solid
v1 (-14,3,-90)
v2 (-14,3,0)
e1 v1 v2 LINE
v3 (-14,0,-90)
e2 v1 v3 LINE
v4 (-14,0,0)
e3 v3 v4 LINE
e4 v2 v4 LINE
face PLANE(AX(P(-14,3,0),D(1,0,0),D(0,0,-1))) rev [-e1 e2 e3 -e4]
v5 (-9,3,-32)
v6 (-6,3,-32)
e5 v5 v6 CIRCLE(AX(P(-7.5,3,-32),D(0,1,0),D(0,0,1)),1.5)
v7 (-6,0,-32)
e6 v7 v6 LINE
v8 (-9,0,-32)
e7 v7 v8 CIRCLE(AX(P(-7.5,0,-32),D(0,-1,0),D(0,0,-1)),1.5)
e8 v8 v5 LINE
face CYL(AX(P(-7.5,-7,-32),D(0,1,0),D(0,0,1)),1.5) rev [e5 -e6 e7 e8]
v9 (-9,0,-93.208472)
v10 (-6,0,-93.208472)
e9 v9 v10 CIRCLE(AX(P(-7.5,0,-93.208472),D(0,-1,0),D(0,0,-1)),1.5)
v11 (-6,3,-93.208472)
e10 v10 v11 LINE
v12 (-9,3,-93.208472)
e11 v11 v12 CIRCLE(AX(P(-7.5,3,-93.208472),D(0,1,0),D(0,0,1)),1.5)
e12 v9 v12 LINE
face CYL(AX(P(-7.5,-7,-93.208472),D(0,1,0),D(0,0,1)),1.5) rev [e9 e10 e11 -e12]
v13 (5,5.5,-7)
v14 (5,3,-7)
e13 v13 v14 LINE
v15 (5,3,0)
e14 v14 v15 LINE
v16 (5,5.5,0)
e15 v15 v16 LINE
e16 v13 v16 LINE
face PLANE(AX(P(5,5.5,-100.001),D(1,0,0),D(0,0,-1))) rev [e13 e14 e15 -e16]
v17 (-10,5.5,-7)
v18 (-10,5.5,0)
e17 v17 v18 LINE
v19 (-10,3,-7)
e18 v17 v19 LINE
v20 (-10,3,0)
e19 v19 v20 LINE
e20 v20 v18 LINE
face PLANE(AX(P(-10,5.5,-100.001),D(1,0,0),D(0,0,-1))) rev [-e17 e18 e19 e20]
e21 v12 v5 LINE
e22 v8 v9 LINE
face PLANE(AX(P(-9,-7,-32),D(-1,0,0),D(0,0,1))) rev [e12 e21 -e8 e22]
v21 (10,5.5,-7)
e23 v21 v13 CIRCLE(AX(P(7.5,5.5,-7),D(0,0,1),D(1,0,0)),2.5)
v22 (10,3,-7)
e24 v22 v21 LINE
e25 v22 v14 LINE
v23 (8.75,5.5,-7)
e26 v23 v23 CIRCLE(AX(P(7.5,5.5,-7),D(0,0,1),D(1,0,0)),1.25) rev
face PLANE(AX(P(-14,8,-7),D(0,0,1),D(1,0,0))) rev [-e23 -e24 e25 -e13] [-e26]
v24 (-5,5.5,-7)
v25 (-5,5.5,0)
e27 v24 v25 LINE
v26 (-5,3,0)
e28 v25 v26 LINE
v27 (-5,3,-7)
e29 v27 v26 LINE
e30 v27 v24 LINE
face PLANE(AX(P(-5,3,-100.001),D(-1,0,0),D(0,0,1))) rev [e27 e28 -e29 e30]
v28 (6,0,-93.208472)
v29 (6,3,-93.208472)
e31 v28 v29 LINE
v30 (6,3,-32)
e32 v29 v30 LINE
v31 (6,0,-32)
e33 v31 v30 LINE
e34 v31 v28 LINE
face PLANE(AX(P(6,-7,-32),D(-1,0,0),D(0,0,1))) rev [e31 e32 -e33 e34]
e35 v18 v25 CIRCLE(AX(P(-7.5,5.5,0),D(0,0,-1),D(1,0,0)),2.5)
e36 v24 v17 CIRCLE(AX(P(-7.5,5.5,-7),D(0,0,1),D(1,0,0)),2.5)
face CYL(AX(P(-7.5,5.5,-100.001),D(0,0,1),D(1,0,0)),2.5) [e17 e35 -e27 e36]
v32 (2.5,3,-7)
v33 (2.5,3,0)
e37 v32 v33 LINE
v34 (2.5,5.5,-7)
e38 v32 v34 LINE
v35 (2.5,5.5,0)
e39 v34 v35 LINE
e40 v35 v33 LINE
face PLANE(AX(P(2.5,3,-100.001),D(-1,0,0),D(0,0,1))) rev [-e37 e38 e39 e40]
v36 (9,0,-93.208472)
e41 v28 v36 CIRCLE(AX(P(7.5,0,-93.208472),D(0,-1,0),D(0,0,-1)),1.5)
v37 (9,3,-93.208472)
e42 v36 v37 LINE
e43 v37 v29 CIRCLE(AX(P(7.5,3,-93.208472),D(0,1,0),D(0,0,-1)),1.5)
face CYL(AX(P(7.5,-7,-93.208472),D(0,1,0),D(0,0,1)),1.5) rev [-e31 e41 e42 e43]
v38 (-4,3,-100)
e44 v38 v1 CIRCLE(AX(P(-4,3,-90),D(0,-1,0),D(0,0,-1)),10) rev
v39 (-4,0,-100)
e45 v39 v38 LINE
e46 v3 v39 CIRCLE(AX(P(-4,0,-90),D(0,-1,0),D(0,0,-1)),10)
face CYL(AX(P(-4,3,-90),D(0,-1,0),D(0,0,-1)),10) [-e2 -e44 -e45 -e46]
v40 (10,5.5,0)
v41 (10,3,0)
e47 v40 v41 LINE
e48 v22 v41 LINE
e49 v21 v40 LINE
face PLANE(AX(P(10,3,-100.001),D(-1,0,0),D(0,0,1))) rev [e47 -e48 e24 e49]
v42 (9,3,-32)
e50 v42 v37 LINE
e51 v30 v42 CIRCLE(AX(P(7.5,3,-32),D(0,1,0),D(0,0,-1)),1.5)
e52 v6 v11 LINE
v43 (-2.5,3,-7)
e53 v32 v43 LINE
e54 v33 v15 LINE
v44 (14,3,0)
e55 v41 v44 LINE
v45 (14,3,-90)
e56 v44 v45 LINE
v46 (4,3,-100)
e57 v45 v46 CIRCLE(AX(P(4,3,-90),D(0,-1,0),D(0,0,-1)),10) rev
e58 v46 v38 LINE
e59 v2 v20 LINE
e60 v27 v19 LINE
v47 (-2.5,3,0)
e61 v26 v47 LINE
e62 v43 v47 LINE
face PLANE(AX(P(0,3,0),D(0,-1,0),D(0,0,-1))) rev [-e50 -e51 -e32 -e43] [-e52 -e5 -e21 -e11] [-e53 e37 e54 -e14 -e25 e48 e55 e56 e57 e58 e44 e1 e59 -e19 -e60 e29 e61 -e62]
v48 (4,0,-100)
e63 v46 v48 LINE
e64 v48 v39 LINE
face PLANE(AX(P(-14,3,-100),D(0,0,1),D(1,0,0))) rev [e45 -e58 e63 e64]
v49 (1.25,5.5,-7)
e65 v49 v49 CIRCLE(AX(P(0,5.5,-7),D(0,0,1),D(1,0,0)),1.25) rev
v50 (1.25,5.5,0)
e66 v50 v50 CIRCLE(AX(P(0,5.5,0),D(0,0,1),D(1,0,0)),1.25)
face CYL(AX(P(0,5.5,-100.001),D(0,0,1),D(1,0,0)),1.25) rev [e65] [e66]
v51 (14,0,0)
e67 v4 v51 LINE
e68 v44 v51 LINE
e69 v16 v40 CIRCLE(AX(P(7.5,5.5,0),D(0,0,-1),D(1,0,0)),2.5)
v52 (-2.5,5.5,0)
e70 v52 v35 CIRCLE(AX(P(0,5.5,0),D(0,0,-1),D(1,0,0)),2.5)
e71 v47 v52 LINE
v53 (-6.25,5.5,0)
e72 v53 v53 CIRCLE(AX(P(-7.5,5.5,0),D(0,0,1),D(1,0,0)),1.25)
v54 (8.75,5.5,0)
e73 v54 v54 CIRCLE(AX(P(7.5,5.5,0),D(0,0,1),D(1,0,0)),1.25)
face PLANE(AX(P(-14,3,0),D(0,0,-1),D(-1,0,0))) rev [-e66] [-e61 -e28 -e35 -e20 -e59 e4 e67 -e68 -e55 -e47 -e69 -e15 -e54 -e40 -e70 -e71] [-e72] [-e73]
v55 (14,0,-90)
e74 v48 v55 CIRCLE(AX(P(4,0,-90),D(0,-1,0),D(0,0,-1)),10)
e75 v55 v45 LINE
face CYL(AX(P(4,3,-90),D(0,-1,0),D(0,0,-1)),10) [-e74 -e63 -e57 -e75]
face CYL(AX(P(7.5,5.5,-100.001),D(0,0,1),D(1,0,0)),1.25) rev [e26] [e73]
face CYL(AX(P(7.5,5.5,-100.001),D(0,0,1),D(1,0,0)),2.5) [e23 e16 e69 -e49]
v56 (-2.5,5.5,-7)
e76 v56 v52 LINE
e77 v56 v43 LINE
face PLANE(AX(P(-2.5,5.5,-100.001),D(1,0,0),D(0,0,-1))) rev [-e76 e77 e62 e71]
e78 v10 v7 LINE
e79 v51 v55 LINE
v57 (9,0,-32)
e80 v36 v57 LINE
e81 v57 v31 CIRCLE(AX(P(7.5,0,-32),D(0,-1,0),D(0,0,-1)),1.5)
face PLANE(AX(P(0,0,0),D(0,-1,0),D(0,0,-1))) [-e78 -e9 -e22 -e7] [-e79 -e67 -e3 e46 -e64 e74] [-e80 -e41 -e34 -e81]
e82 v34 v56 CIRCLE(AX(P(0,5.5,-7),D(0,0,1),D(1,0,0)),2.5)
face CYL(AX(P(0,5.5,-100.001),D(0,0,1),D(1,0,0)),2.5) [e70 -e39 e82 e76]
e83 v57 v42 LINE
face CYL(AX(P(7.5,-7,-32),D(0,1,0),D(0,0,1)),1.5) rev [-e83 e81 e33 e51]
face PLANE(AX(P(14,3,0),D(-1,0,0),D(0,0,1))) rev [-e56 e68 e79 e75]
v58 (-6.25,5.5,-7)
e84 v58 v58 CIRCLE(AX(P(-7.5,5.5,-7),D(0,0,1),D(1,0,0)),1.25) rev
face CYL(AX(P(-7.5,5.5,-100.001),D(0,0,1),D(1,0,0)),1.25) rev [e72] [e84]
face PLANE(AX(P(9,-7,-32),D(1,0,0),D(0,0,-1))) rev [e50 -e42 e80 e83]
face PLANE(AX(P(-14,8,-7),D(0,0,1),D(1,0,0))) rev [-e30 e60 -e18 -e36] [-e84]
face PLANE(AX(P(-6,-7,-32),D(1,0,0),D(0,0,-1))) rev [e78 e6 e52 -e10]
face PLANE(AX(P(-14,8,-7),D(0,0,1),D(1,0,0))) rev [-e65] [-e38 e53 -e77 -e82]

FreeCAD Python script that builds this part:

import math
import FreeCAD as App
import Part
import Sketcher
from FreeCAD import Vector
Q = App.Units.Quantity


def edges_at(feature, points):
    """Names of the edges that pass closest to the given points."""
    edges = feature.Shape.Edges
    near = lambda p: min(range(len(edges)), key=lambda i: edges[i].distToShape(Part.Vertex(*p))[0])
    return sorted({f"Edge{near(p) + 1}" for p in points})

doc = App.newDocument("Part")
body = doc.addObject("PartDesign::Body", "Body")

sketch1 = body.newObject("Sketcher::SketchObject", "Sketch")
sketch1.AttachmentSupport = (doc.getObject("XZ_Plane"), [""])
sketch1.MapMode = "FlatFace"
sketch1.addGeometry([
    Part.LineSegment(Vector(-14, -100, 0), Vector(-14, 0, 0)),
    Part.LineSegment(Vector(-14, 0, 0), Vector(14, 0, 0)),
    Part.LineSegment(Vector(14, 0, 0), Vector(14, -100, 0)),
    Part.LineSegment(Vector(14, -100, 0), Vector(-14, -100, 0)),
], False)
sketch1.addConstraint([
    Sketcher.Constraint("Coincident", 0, 2, 1, 1),
    Sketcher.Constraint("Coincident", 1, 2, 2, 1),
    Sketcher.Constraint("Coincident", 2, 2, 3, 1),
    Sketcher.Constraint("Coincident", 3, 2, 0, 1),
    Sketcher.Constraint("Vertical", 0),
    Sketcher.Constraint("Horizontal", 1),
    Sketcher.Constraint("Vertical", 2),
    Sketcher.Constraint("Horizontal", 3),
    Sketcher.Constraint("Symmetric", 0, 2, 1, 2, -1, 1),
    Sketcher.Constraint("DistanceX", 1, 1, 1, 2, Q("28 mm")),
    Sketcher.Constraint("DistanceY", 0, 1, 0, 2, Q("100 mm")),
])
pad1 = body.newObject("PartDesign::Pad", "Pad")
pad1.Profile = sketch1
pad1.Length = 3
pad1.Reversed = True

sketch2 = body.newObject("Sketcher::SketchObject", "Sketch001")
sketch2.AttachmentSupport = (doc.getObject("XZ_Plane"), [""])
sketch2.MapMode = "FlatFace"
sketch2.AttachmentOffset = App.Placement(Vector(0, 0, -3), App.Rotation())
sketch2.addGeometry([
    Part.LineSegment(Vector(-14, -7, 0), Vector(-14, 0, 0)),
    Part.LineSegment(Vector(-14, 0, 0), Vector(14, 0, 0)),
    Part.LineSegment(Vector(14, 0, 0), Vector(14, -7, 0)),
    Part.LineSegment(Vector(14, -7, 0), Vector(-14, -7, 0)),
], False)
sketch2.addConstraint([
    Sketcher.Constraint("Coincident", 0, 2, 1, 1),
    Sketcher.Constraint("Coincident", 1, 2, 2, 1),
    Sketcher.Constraint("Coincident", 2, 2, 3, 1),
    Sketcher.Constraint("Coincident", 3, 2, 0, 1),
    Sketcher.Constraint("Vertical", 0),
    Sketcher.Constraint("Horizontal", 1),
    Sketcher.Constraint("Vertical", 2),
    Sketcher.Constraint("Horizontal", 3),
    Sketcher.Constraint("Symmetric", 0, 2, 1, 2, -1, 1),
    Sketcher.Constraint("DistanceX", 1, 1, 1, 2, Q("28 mm")),
    Sketcher.Constraint("DistanceY", 0, 1, 0, 2, Q("7 mm")),
])
pad2 = body.newObject("PartDesign::Pad", "Pad001")
pad2.Profile = sketch2
pad2.Length = 5
pad2.Reversed = True

sketch3 = body.newObject("Sketcher::SketchObject", "Sketch002")
sketch3.AttachmentSupport = (doc.getObject("XY_Plane"), [""])
sketch3.MapMode = "FlatFace"
sketch3.addGeometry(Part.Circle(Vector(-7.5, 5.5, 0), Vector(0, 0, 1), 1.25), False)
sketch3.addConstraint([
    Sketcher.Constraint("Diameter", 0, Q("2.5 mm")),
    Sketcher.Constraint("DistanceX", 0, 3, -1, 1, Q("7.5 mm")),
    Sketcher.Constraint("DistanceY", -1, 1, 0, 3, Q("5.5 mm")),
])
pocket1 = body.newObject("PartDesign::Pocket", "Pocket")
pocket1.Profile = sketch3
pocket1.Type = "UpToFirst"

sketch4 = body.newObject("Sketcher::SketchObject", "Sketch003")
sketch4.AttachmentSupport = (doc.getObject("XY_Plane"), [""])
sketch4.MapMode = "FlatFace"
sketch4.addGeometry(Part.Circle(Vector(0, 5.5, 0), Vector(0, 0, 1), 1.25), False)
sketch4.addConstraint([
    Sketcher.Constraint("PointOnObject", 0, 3, -2),
    Sketcher.Constraint("Diameter", 0, Q("2.5 mm")),
    Sketcher.Constraint("DistanceY", -1, 1, 0, 3, Q("5.5 mm")),
])
pocket2 = body.newObject("PartDesign::Pocket", "Pocket001")
pocket2.Profile = sketch4
pocket2.Type = "UpToFirst"

sketch5 = body.newObject("Sketcher::SketchObject", "Sketch004")
sketch5.AttachmentSupport = (doc.getObject("XY_Plane"), [""])
sketch5.MapMode = "FlatFace"
sketch5.addGeometry(Part.Circle(Vector(7.5, 5.5, 0), Vector(0, 0, 1), 1.25), False)
sketch5.addConstraint([
    Sketcher.Constraint("Diameter", 0, Q("2.5 mm")),
    Sketcher.Constraint("DistanceX", -1, 1, 0, 3, Q("7.5 mm")),
    Sketcher.Constraint("DistanceY", -1, 1, 0, 3, Q("5.5 mm")),
])
pocket3 = body.newObject("PartDesign::Pocket", "Pocket002")
pocket3.Profile = sketch5
pocket3.Type = "UpToFirst"

sketch6 = body.newObject("Sketcher::SketchObject", "Sketch005")
sketch6.AttachmentSupport = (doc.getObject("XY_Plane"), [""])
sketch6.MapMode = "FlatFace"
sketch6.AttachmentOffset = App.Placement(Vector(0, 0, -7), App.Rotation())
sketch6.addGeometry([
    Part.LineSegment(Vector(-14, 3, 0), Vector(-10, 3, 0)),
    Part.LineSegment(Vector(-10, 3, 0), Vector(-10, 5.5, 0)),
    Part.ArcOfCircle(Part.Circle(Vector(-7.5, 5.5, 0), Vector(0, 0, 1), 2.5), math.radians(0), math.radians(180)),
    Part.LineSegment(Vector(-5, 5.5, 0), Vector(-5, 3, 0)),
    Part.LineSegment(Vector(-5, 3, 0), Vector(-2.5, 3, 0)),
    Part.LineSegment(Vector(-2.5, 3, 0), Vector(-2.5, 5.5, 0)),
    Part.ArcOfCircle(Part.Circle(Vector(0, 5.5, 0), Vector(0, 0, 1), 2.5), math.radians(0), math.radians(180)),
    Part.LineSegment(Vector(2.5, 5.5, 0), Vector(2.5, 3, 0)),
    Part.LineSegment(Vector(2.5, 3, 0), Vector(5, 3, 0)),
    Part.LineSegment(Vector(5, 3, 0), Vector(5, 5.5, 0)),
    Part.ArcOfCircle(Part.Circle(Vector(7.5, 5.5, 0), Vector(0, 0, 1), 2.5), math.radians(0), math.radians(180)),
    Part.LineSegment(Vector(10, 5.5, 0), Vector(10, 3, 0)),
    Part.LineSegment(Vector(10, 3, 0), Vector(14, 3, 0)),
    Part.LineSegment(Vector(14, 3, 0), Vector(14, 10.200483, 0)),
    Part.LineSegment(Vector(14, 10.200483, 0), Vector(-14, 10.200483, 0)),
    Part.LineSegment(Vector(-14, 10.200483, 0), Vector(-14, 3, 0)),
], False)
sketch6.addConstraint([
    Sketcher.Constraint("Coincident", 0, 2, 1, 1),
    Sketcher.Constraint("Tangent", 1, 2, 2, 2),
    Sketcher.Constraint("Tangent", 2, 1, 3, 1),
    Sketcher.Constraint("Coincident", 3, 2, 4, 1),
    Sketcher.Constraint("Coincident", 4, 2, 5, 1),
    Sketcher.Constraint("Tangent", 5, 2, 6, 2),
    Sketcher.Constraint("Tangent", 6, 1, 7, 1),
    Sketcher.Constraint("Coincident", 7, 2, 8, 1),
    Sketcher.Constraint("Coincident", 8, 2, 9, 1),
    Sketcher.Constraint("Tangent", 9, 2, 10, 2),
    Sketcher.Constraint("Tangent", 10, 1, 11, 1),
    Sketcher.Constraint("Coincident", 11, 2, 12, 1),
    Sketcher.Constraint("Coincident", 12, 2, 13, 1),
    Sketcher.Constraint("Coincident", 13, 2, 14, 1),
    Sketcher.Constraint("Coincident", 14, 2, 15, 1),
    Sketcher.Constraint("Coincident", 15, 2, 0, 1),
    Sketcher.Constraint("Horizontal", 0),
    Sketcher.Constraint("Vertical", 1),
    Sketcher.Constraint("Vertical", 3),
    Sketcher.Constraint("Horizontal", 4),
    Sketcher.Constraint("Vertical", 5),
    Sketcher.Constraint("Vertical", 7),
    Sketcher.Constraint("Horizontal", 8),
    Sketcher.Constraint("Vertical", 9),
    Sketcher.Constraint("Vertical", 11),
    Sketcher.Constraint("Horizontal", 12),
    Sketcher.Constraint("Vertical", 13),
    Sketcher.Constraint("Horizontal", 14),
    Sketcher.Constraint("Vertical", 15),
    Sketcher.Constraint("Equal", 2, 6),
    Sketcher.Constraint("Equal", 6, 10),
    Sketcher.Constraint("Symmetric", 2, 3, 10, 3, -2),
    Sketcher.Constraint("Symmetric", 4, 2, 7, 2, -2),
    Sketcher.Constraint("Symmetric", 12, 2, 15, 2, -2),
    Sketcher.Constraint("Horizontal", 2, 3, 6, 3),
    Sketcher.Constraint("Horizontal", 0, 2, 3, 2),
    Sketcher.Constraint("Equal", 8, 1),
    Sketcher.Constraint("Radius", 2, Q("2.5 mm")),
    Sketcher.Constraint("DistanceX", 0, 1, 0, 2, Q("4 mm")),
    Sketcher.Constraint("DistanceX", 14, 2, 14, 1, Q("28 mm")),
    Sketcher.Constraint("DistanceY", -1, 1, 0, 2, Q("3 mm")),
    Sketcher.Constraint("DistanceY", 13, 1, 13, 2, Q("7.200483 mm")),
])
pocket4 = body.newObject("PartDesign::Pocket", "Pocket003")
pocket4.Profile = sketch6
pocket4.Length = 7
pocket4.Reversed = True

sketch7 = body.newObject("Sketcher::SketchObject", "Sketch006")
sketch7.AttachmentSupport = (doc.getObject("XZ_Plane"), [""])
sketch7.MapMode = "FlatFace"
sketch7.AttachmentOffset = App.Placement(Vector(0, 0, -3), App.Rotation())
sketch7.addGeometry([
    Part.LineSegment(Vector(-9, -93.208472, 0), Vector(-9, -32, 0)),
    Part.ArcOfCircle(Part.Circle(Vector(-7.5, -32, 0), Vector(0, 0, 1), 1.5), math.radians(0), math.radians(180)),
    Part.LineSegment(Vector(-6, -32, 0), Vector(-6, -93.208472, 0)),
    Part.ArcOfCircle(Part.Circle(Vector(-7.5, -93.208472, 0), Vector(0, 0, 1), 1.5), math.radians(180), math.radians(360)),
    Part.LineSegment(Vector(9, -32, 0), Vector(9, -93.208472, 0)),
    Part.ArcOfCircle(Part.Circle(Vector(7.5, -93.208472, 0), Vector(0, 0, 1), 1.5), math.radians(180), math.radians(360)),
    Part.LineSegment(Vector(6, -93.208472, 0), Vector(6, -32, 0)),
    Part.ArcOfCircle(Part.Circle(Vector(7.5, -32, 0), Vector(0, 0, 1), 1.5), math.radians(0), math.radians(180)),
], False)
sketch7.addConstraint([
    Sketcher.Constraint("Tangent", 0, 2, 1, 2),
    Sketcher.Constraint("Tangent", 1, 1, 2, 1),
    Sketcher.Constraint("Tangent", 2, 2, 3, 2),
    Sketcher.Constraint("Tangent", 3, 1, 0, 1),
    Sketcher.Constraint("Tangent", 4, 2, 5, 2),
    Sketcher.Constraint("Tangent", 5, 1, 6, 1),
    Sketcher.Constraint("Tangent", 6, 2, 7, 2),
    Sketcher.Constraint("Tangent", 7, 1, 4, 1),
    Sketcher.Constraint("Vertical", 0),
    Sketcher.Constraint("Vertical", 2),
    Sketcher.Constraint("Vertical", 4),
    Sketcher.Constraint("Vertical", 6),
    Sketcher.Constraint("Equal", 3, 5),
    Sketcher.Constraint("Symmetric", 3, 3, 5, 3, -2),
    Sketcher.Constraint("Horizontal", 1, 3, 7, 3),
    Sketcher.Constraint("Radius", 1, Q("1.5 mm")),
    Sketcher.Constraint("DistanceY", 1, 3, -1, 1, Q("32 mm")),
    Sketcher.Constraint("DistanceX", 0, 2, -1, 1, Q("9 mm")),
    Sketcher.Constraint("DistanceY", 0, 1, 0, 2, Q("61.208472 mm")),
])
pocket5 = body.newObject("PartDesign::Pocket", "Pocket004")
pocket5.Profile = sketch7
pocket5.Length = 10
pocket5.Reversed = True
doc.recompute()

fillet = body.newObject("PartDesign::Fillet", "Fillet")
fillet.Base = (pocket5, edges_at(pocket5, [(-14, 1.5, -100), (14, 1.5, -100)]))
fillet.Radius = 10

doc.recompute()
